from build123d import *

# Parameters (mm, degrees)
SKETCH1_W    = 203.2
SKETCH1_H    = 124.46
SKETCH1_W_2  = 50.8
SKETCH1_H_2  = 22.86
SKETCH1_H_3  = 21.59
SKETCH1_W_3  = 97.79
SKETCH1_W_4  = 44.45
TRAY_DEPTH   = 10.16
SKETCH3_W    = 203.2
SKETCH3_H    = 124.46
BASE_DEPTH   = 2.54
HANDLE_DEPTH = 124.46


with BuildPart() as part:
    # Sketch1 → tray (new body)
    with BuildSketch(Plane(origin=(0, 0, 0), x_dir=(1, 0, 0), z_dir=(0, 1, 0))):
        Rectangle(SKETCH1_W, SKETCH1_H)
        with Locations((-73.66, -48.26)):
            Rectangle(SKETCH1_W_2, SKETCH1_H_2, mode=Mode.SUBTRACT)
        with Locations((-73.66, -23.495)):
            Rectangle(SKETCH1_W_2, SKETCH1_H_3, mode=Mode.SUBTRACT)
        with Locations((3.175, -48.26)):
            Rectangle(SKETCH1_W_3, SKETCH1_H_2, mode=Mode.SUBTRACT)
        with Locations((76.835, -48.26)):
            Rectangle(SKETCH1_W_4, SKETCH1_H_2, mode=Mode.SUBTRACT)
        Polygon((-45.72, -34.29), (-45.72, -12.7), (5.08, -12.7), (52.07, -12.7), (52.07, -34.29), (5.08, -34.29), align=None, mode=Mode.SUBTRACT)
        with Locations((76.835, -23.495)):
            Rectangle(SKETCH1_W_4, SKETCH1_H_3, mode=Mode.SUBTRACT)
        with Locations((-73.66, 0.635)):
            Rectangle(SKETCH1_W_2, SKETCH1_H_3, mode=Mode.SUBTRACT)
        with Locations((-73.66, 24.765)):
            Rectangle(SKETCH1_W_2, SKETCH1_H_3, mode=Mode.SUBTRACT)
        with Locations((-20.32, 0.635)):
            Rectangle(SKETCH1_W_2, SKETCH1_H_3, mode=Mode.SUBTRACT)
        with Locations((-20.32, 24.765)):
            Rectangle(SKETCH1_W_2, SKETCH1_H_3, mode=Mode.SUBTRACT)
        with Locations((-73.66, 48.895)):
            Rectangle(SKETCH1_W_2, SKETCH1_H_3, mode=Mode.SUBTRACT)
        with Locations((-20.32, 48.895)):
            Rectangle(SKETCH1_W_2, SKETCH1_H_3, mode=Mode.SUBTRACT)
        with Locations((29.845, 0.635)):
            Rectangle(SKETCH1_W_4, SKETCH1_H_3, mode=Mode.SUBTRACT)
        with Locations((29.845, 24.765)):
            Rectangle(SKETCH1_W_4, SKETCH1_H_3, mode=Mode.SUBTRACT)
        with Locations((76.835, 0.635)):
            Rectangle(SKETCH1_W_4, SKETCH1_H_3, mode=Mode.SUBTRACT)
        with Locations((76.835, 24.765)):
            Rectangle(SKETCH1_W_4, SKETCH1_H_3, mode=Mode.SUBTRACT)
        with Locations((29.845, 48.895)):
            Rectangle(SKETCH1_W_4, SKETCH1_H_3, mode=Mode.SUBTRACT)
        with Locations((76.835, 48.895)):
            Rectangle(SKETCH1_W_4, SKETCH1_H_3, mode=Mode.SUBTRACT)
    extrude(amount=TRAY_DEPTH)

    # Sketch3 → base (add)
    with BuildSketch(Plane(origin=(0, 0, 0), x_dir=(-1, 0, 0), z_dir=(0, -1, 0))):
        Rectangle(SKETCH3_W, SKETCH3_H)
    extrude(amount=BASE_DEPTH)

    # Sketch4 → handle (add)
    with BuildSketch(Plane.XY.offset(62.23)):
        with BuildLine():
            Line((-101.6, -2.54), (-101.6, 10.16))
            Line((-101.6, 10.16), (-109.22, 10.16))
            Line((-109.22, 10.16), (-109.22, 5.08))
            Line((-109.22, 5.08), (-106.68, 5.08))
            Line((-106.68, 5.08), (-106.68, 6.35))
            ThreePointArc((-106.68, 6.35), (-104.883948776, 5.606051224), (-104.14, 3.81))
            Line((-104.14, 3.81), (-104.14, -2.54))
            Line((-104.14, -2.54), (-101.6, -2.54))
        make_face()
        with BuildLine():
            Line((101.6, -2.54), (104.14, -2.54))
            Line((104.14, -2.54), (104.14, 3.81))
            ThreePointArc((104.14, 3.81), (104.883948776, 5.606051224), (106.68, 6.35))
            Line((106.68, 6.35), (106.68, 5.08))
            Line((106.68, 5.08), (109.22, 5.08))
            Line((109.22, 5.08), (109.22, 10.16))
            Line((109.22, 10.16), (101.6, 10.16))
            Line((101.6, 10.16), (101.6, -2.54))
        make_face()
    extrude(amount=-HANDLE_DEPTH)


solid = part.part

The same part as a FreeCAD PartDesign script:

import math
import FreeCAD as App
import Part
import Sketcher
from FreeCAD import Vector
Q = App.Units.Quantity


def add_polygon(sketch, points):
    """Adds a closed chain of lines whose ends are joined by coincident constraints."""
    first, n = sketch.GeometryCount, len(points)
    for a, b in zip(points, points[1:] + points[:1]):
        sketch.addGeometry(Part.LineSegment(App.Vector(*a, 0), App.Vector(*b, 0)), False)
    for i in range(n):
        sketch.addConstraint(Sketcher.Constraint("Coincident", first + i, 2, first + (i + 1) % n, 1))

doc = App.newDocument("Part")
body = doc.addObject("PartDesign::Body", "Body")

# Sketch on XZ plane
sketch1 = body.newObject("Sketcher::SketchObject", "Sketch")
sketch1.AttachmentSupport = (doc.getObject("XZ_Plane"), [""])
sketch1.MapMode = "FlatFace"
add_polygon(sketch1, [(-102, -62), (-102, 62), (102, 62), (102, -62)])  # lines 0-3
add_polygon(sketch1, [(-48, 60), (-99, 60), (-99, 37), (-48, 37)])  # lines 4-7
add_polygon(sketch1, [(-48, 34), (-99, 34), (-99, 13), (-48, 13)])  # lines 8-11
add_polygon(sketch1, [(52, 60), (-46, 60), (-46, 37), (52, 37)])  # lines 12-15
add_polygon(sketch1, [(99, 60), (55, 60), (55, 37), (99, 37)])  # lines 16-19
add_polygon(sketch1, [(52, 34), (-46, 34), (-46, 13), (52, 13)])  # lines 20-23
add_polygon(sketch1, [(99, 34), (55, 34), (55, 13), (99, 13)])  # lines 24-27
add_polygon(sketch1, [(-48, 10), (-99, 10), (-99, -11), (-48, -11)])  # lines 28-31
add_polygon(sketch1, [(-48, -14), (-99, -14), (-99, -36), (-48, -36)])  # lines 32-35
add_polygon(sketch1, [(5, 10), (-46, 10), (-46, -11), (5, -11)])  # lines 36-39
add_polygon(sketch1, [(5, -14), (-46, -14), (-46, -36), (5, -36)])  # lines 40-43
add_polygon(sketch1, [(-48, -38), (-99, -38), (-99, -60), (-48, -60)])  # lines 44-47
add_polygon(sketch1, [(5, -38), (-46, -38), (-46, -60), (5, -60)])  # lines 48-51
add_polygon(sketch1, [(52, 10), (8, 10), (8, -11), (52, -11)])  # lines 52-55
add_polygon(sketch1, [(52, -14), (8, -14), (8, -36), (52, -36)])  # lines 56-59
add_polygon(sketch1, [(99, 10), (55, 10), (55, -11), (99, -11)])  # lines 60-63
add_polygon(sketch1, [(99, -14), (55, -14), (55, -36), (99, -36)])  # lines 64-67
add_polygon(sketch1, [(52, -38), (8, -38), (8, -60), (52, -60)])  # lines 68-71
add_polygon(sketch1, [(99, -38), (55, -38), (55, -60), (99, -60)])  # lines 72-75
sketch1.addConstraint([
    Sketcher.Constraint("Vertical", 0),
    Sketcher.Constraint("Horizontal", 1),
    Sketcher.Constraint("Vertical", 2),
    Sketcher.Constraint("Horizontal", 3),
    Sketcher.Constraint("Horizontal", 4),
    Sketcher.Constraint("Vertical", 5),
    Sketcher.Constraint("Horizontal", 6),
    Sketcher.Constraint("Vertical", 7),
    Sketcher.Constraint("Horizontal", 8),
    Sketcher.Constraint("Vertical", 9),
    Sketcher.Constraint("Horizontal", 10),
    Sketcher.Constraint("Vertical", 11),
    Sketcher.Constraint("Horizontal", 12),
    Sketcher.Constraint("Vertical", 13),
    Sketcher.Constraint("Horizontal", 14),
    Sketcher.Constraint("Vertical", 15),
    Sketcher.Constraint("Horizontal", 16),
    Sketcher.Constraint("Vertical", 17),
    Sketcher.Constraint("Horizontal", 18),
    Sketcher.Constraint("Vertical", 19),
    Sketcher.Constraint("Horizontal", 20),
    Sketcher.Constraint("Vertical", 21),
    Sketcher.Constraint("Horizontal", 22),
    Sketcher.Constraint("Vertical", 23),
    Sketcher.Constraint("Horizontal", 24),
    Sketcher.Constraint("Vertical", 25),
    Sketcher.Constraint("Horizontal", 26),
    Sketcher.Constraint("Vertical", 27),
    Sketcher.Constraint("Horizontal", 28),
    Sketcher.Constraint("Vertical", 29),
    Sketcher.Constraint("Horizontal", 30),
    Sketcher.Constraint("Vertical", 31),
    Sketcher.Constraint("Horizontal", 32),
    Sketcher.Constraint("Vertical", 33),
    Sketcher.Constraint("Horizontal", 34),
    Sketcher.Constraint("Vertical", 35),
    Sketcher.Constraint("Horizontal", 36),
    Sketcher.Constraint("Vertical", 37),
    Sketcher.Constraint("Horizontal", 38),
    Sketcher.Constraint("Vertical", 39),
    Sketcher.Constraint("Horizontal", 40),
    Sketcher.Constraint("Vertical", 41),
    Sketcher.Constraint("Horizontal", 42),
    Sketcher.Constraint("Vertical", 43),
    Sketcher.Constraint("Horizontal", 44),
    Sketcher.Constraint("Vertical", 45),
    Sketcher.Constraint("Horizontal", 46),
    Sketcher.Constraint("Vertical", 47),
    Sketcher.Constraint("Horizontal", 48),
    Sketcher.Constraint("Vertical", 49),
    Sketcher.Constraint("Horizontal", 50),
    Sketcher.Constraint("Vertical", 51),
    Sketcher.Constraint("Horizontal", 52),
    Sketcher.Constraint("Vertical", 53),
    Sketcher.Constraint("Horizontal", 54),
    Sketcher.Constraint("Vertical", 55),
    Sketcher.Constraint("Horizontal", 56),
    Sketcher.Constraint("Vertical", 57),
    Sketcher.Constraint("Horizontal", 58),
    Sketcher.Constraint("Vertical", 59),
    Sketcher.Constraint("Horizontal", 60),
    Sketcher.Constraint("Vertical", 61),
    Sketcher.Constraint("Horizontal", 62),
    Sketcher.Constraint("Vertical", 63),
    Sketcher.Constraint("Horizontal", 64),
    Sketcher.Constraint("Vertical", 65),
    Sketcher.Constraint("Horizontal", 66),
    Sketcher.Constraint("Vertical", 67),
    Sketcher.Constraint("Horizontal", 68),
    Sketcher.Constraint("Vertical", 69),
    Sketcher.Constraint("Horizontal", 70),
    Sketcher.Constraint("Vertical", 71),
    Sketcher.Constraint("Horizontal", 72),
    Sketcher.Constraint("Vertical", 73),
    Sketcher.Constraint("Horizontal", 74),
    Sketcher.Constraint("Vertical", 75),
    Sketcher.Constraint("Symmetric", 0, 2, 2, 2, -1, 1),
    Sketcher.Constraint("Symmetric", 19, 2, 45, 2, -1, 1),
    Sketcher.Constraint("Symmetric", 4, 2, 74, 2, -1, 1),
    Sketcher.Constraint("Symmetric", 5, 2, 18, 2, -2),
    Sketcher.Constraint("Symmetric", 9, 2, 26, 2, -2),
    Sketcher.Constraint("Symmetric", 29, 2, 62, 2, -2),
    Sketcher.Constraint("Symmetric", 33, 2, 66, 2, -2),
    Sketcher.Constraint("Symmetric", 7, 2, 46, 2, -1),
    Sketcher.Constraint("Symmetric", 12, 2, 49, 2, -1),
    Sketcher.Constraint("Symmetric", 15, 2, 70, 2, -1),
    Sketcher.Constraint("Horizontal", 7, 2, 12, 2),
    Sketcher.Constraint("Horizontal", 6, 2, 13, 2),
    Sketcher.Constraint("Horizontal", 11, 2, 20, 2),
    Sketcher.Constraint("Horizontal", 10, 2, 21, 2),
    Sketcher.Constraint("Horizontal", 23, 2, 24, 2),
    Sketcher.Constraint("Horizontal", 31, 2, 36, 2),
    Sketcher.Constraint("Horizontal", 30, 2, 37, 2),
    Sketcher.Constraint("Horizontal", 35, 2, 40, 2),
    Sketcher.Constraint("Horizontal", 34, 2, 41, 2),
    Sketcher.Constraint("Horizontal", 47, 2, 48, 2),
    Sketcher.Constraint("Horizontal", 39, 2, 52, 2),
    Sketcher.Constraint("Horizontal", 38, 2, 53, 2),
    Sketcher.Constraint("Horizontal", 43, 2, 56, 2),
    Sketcher.Constraint("Horizontal", 42, 2, 57, 2),
    Sketcher.Constraint("Horizontal", 55, 2, 60, 2),
    Sketcher.Constraint("Horizontal", 59, 2, 64, 2),
    Sketcher.Constraint("Horizontal", 51, 2, 68, 2),
    Sketcher.Constraint("Horizontal", 71, 2, 72, 2),
    Sketcher.Constraint("Vertical", 5, 2, 8, 2),
    Sketcher.Constraint("Vertical", 7, 2, 10, 2),
    Sketcher.Constraint("Vertical", 13, 2, 20, 2),
    Sketcher.Constraint("Vertical", 15, 2, 22, 2),
    Sketcher.Constraint("Vertical", 17, 2, 24, 2),
    Sketcher.Constraint("Vertical", 9, 2, 28, 2),
    Sketcher.Constraint("Vertical", 11, 2, 30, 2),
    Sketcher.Constraint("Vertical", 29, 2, 32, 2),
    Sketcher.Constraint("Vertical", 31, 2, 34, 2),
    Sketcher.Constraint("Vertical", 21, 2, 36, 2),
    Sketcher.Constraint("Vertical", 37, 2, 40, 2),
    Sketcher.Constraint("Vertical", 39, 2, 42, 2),
    Sketcher.Constraint("Vertical", 43, 2, 50, 2),
    Sketcher.Constraint("Vertical", 23, 2, 54, 2),
    Sketcher.Constraint("Vertical", 53, 2, 56, 2),
    Sketcher.Constraint("Vertical", 55, 2, 58, 2),
    Sketcher.Constraint("Vertical", 25, 2, 60, 2),
    Sketcher.Constraint("Vertical", 61, 2, 64, 2),
    Sketcher.Constraint("Vertical", 57, 2, 68, 2),
    Sketcher.Constraint("Vertical", 65, 2, 72, 2),
    Sketcher.Constraint("Equal", 34, 36),
    Sketcher.Constraint("Equal", 26, 52),
    Sketcher.Constraint("Equal", 27, 29),
    Sketcher.Constraint("Equal", 31, 33),
    Sketcher.Constraint("Equal", 43, 45),
    Sketcher.Constraint("DistanceX", 1, 1, 1, 2, Q("8 in")),
    Sketcher.Constraint("DistanceX", 4, 2, 4, 1, Q("2 in")),
    Sketcher.Constraint("DistanceY", 0, 1, 0, 2, Q("4.9 in")),
    Sketcher.Constraint("DistanceY", 5, 2, 5, 1, Q("0.9 in")),
    Sketcher.Constraint("DistanceX", 12, 2, 12, 1, Q("3.85 in")),
    Sketcher.Constraint("DistanceX", 16, 2, 16, 1, Q("1.75 in")),
    Sketcher.Constraint("DistanceY", 9, 2, 9, 1, Q("0.85 in")),
    Sketcher.Constraint("DistanceX", 4, 2, -1, 1, Q("3.9 in")),
    Sketcher.Constraint("DistanceY", -1, 1, 9, 2, Q("0.5 in")),
    Sketcher.Constraint("DistanceX", 12, 2, -1, 1, Q("1.8 in")),
    Sketcher.Constraint("DistanceY", -1, 1, 28, 2, Q("0.4 in")),
    Sketcher.Constraint("DistanceY", 33, 2, -1, 1, Q("1.4 in")),
    Sketcher.Constraint("DistanceY", 44, 2, -1, 1, Q("1.5 in")),
])
pad1 = body.newObject("PartDesign::Pad", "Pad")
pad1.Profile = sketch1
pad1.Length = Q("0.4 in")
pad1.Reversed = True

# Sketch on XZ plane
sketch2 = body.newObject("Sketcher::SketchObject", "Sketch001")
sketch2.AttachmentSupport = (doc.getObject("XZ_Plane"), [""])
sketch2.MapMode = "FlatFace"
add_polygon(sketch2, [(102, -62), (102, 62), (-102, 62), (-102, -62)])  # lines 0-3
sketch2.addConstraint([
    Sketcher.Constraint("Vertical", 0),
    Sketcher.Constraint("Horizontal", 1),
    Sketcher.Constraint("Vertical", 2),
    Sketcher.Constraint("Horizontal", 3),
    Sketcher.Constraint("Symmetric", 0, 2, 2, 2, -1, 1),
    Sketcher.Constraint("DistanceX", 1, 2, 1, 1, Q("8 in")),
    Sketcher.Constraint("DistanceY", 0, 1, 0, 2, Q("4.9 in")),
])
pad2 = body.newObject("PartDesign::Pad", "Pad001")
pad2.Profile = sketch2
pad2.Length = Q("0.1 in")

# Sketch on XY plane
sketch3 = body.newObject("Sketcher::SketchObject", "Sketch002")
sketch3.AttachmentSupport = (doc.getObject("XY_Plane"), [""])
sketch3.MapMode = "FlatFace"
sketch3.AttachmentOffset = App.Placement(Vector(0, 0, 2.45 * 25.4), App.Rotation())
sketch3.addGeometry([
    Part.LineSegment(Vector(-101.6, -2.5, 0), Vector(-101.6, 10.2, 0)),  # 0
    Part.LineSegment(Vector(-101.6, 10.2, 0), Vector(-109.2, 10.2, 0)),  # 1
    Part.LineSegment(Vector(-109.2, 10.2, 0), Vector(-109.2, 5.1, 0)),  # 2
    Part.LineSegment(Vector(-109.2, 5.1, 0), Vector(-106.7, 5.1, 0)),  # 3
    Part.LineSegment(Vector(-106.7, 5.1, 0), Vector(-106.7, 6.3, 0)),  # 4
    Part.ArcOfCircle(Part.Circle(Vector(-106.7, 3.8, 0), Vector(0, 0, 1), 2.5), math.radians(0), math.radians(90)),  # 5
    Part.LineSegment(Vector(-104.1, 3.8, 0), Vector(-104.1, -2.5, 0)),  # 6
    Part.LineSegment(Vector(-104.1, -2.5, 0), Vector(-101.6, -2.5, 0)),  # 7
    Part.LineSegment(Vector(101.6, -2.5, 0), Vector(104.1, -2.5, 0)),  # 8
    Part.LineSegment(Vector(104.1, -2.5, 0), Vector(104.1, 3.8, 0)),  # 9
    Part.ArcOfCircle(Part.Circle(Vector(106.7, 3.8, 0), Vector(0, 0, 1), 2.5), math.radians(90), math.radians(180)),  # 10
    Part.LineSegment(Vector(106.7, 6.3, 0), Vector(106.7, 5.1, 0)),  # 11
    Part.LineSegment(Vector(106.7, 5.1, 0), Vector(109.2, 5.1, 0)),  # 12
    Part.LineSegment(Vector(109.2, 5.1, 0), Vector(109.2, 10.2, 0)),  # 13
    Part.LineSegment(Vector(109.2, 10.2, 0), Vector(101.6, 10.2, 0)),  # 14
    Part.LineSegment(Vector(101.6, 10.2, 0), Vector(101.6, -2.5, 0)),  # 15
], False)
sketch3.addConstraint([
    Sketcher.Constraint("Coincident", 0, 2, 1, 1),
    Sketcher.Constraint("Coincident", 1, 2, 2, 1),
    Sketcher.Constraint("Coincident", 2, 2, 3, 1),
    Sketcher.Constraint("Coincident", 3, 2, 4, 1),
    Sketcher.Constraint("Coincident", 4, 2, 5, 2),
    Sketcher.Constraint("Tangent", 5, 1, 6, 1),
    Sketcher.Constraint("Coincident", 6, 2, 7, 1),
    Sketcher.Constraint("Coincident", 7, 2, 0, 1),
    Sketcher.Constraint("Coincident", 8, 2, 9, 1),
    Sketcher.Constraint("Tangent", 9, 2, 10, 2),
    Sketcher.Constraint("Coincident", 10, 1, 11, 1),
    Sketcher.Constraint("Coincident", 11, 2, 12, 1),
    Sketcher.Constraint("Coincident", 12, 2, 13, 1),
    Sketcher.Constraint("Coincident", 13, 2, 14, 1),
    Sketcher.Constraint("Coincident", 14, 2, 15, 1),
    Sketcher.Constraint("Coincident", 15, 2, 8, 1),
    Sketcher.Constraint("Vertical", 0),
    Sketcher.Constraint("Horizontal", 1),
    Sketcher.Constraint("Vertical", 2),
    Sketcher.Constraint("Horizontal", 3),
    Sketcher.Constraint("Vertical", 4),
    Sketcher.Constraint("Vertical", 6),
    Sketcher.Constraint("Horizontal", 7),
    Sketcher.Constraint("Horizontal", 8),
    Sketcher.Constraint("Vertical", 9),
    Sketcher.Constraint("Vertical", 11),
    Sketcher.Constraint("Horizontal", 12),
    Sketcher.Constraint("Vertical", 13),
    Sketcher.Constraint("Horizontal", 14),
    Sketcher.Constraint("Vertical", 15),
    Sketcher.Constraint("Equal", 5, 10),
    Sketcher.Constraint("Symmetric", 5, 3, 10, 3, -2),
    Sketcher.Constraint("Symmetric", 3, 2, 11, 2, -2),
    Sketcher.Constraint("Symmetric", 1, 2, 13, 2, -2),
    Sketcher.Constraint("Symmetric", 7, 2, 15, 2, -2),
    Sketcher.Constraint("Vertical", 5, 3, 3, 2),
    Sketcher.Constraint("Equal", 3, 7),
    Sketcher.Constraint("Radius", 5, Q("0.1 in")),
    Sketcher.Constraint("DistanceX", 1, 2, 1, 1, Q("0.3 in")),
    Sketcher.Constraint("DistanceY", 0, 1, 0, 2, Q("0.5 in")),
    Sketcher.Constraint("DistanceY", 2, 2, 2, 1, Q("0.2 in")),
    Sketcher.Constraint("DistanceX", 0, 2, -1, 1, Q("4 in")),
    Sketcher.Constraint("DistanceY", 4, 1, 4, 2, Q("0.05 in")),
    Sketcher.Constraint("DistanceY", -1, 1, 0, 2, Q("0.4 in")),
])
pad3 = body.newObject("PartDesign::Pad", "Pad002")
pad3.Profile = sketch3
pad3.Length = Q("4.9 in")
pad3.Reversed = True

doc.recompute()
